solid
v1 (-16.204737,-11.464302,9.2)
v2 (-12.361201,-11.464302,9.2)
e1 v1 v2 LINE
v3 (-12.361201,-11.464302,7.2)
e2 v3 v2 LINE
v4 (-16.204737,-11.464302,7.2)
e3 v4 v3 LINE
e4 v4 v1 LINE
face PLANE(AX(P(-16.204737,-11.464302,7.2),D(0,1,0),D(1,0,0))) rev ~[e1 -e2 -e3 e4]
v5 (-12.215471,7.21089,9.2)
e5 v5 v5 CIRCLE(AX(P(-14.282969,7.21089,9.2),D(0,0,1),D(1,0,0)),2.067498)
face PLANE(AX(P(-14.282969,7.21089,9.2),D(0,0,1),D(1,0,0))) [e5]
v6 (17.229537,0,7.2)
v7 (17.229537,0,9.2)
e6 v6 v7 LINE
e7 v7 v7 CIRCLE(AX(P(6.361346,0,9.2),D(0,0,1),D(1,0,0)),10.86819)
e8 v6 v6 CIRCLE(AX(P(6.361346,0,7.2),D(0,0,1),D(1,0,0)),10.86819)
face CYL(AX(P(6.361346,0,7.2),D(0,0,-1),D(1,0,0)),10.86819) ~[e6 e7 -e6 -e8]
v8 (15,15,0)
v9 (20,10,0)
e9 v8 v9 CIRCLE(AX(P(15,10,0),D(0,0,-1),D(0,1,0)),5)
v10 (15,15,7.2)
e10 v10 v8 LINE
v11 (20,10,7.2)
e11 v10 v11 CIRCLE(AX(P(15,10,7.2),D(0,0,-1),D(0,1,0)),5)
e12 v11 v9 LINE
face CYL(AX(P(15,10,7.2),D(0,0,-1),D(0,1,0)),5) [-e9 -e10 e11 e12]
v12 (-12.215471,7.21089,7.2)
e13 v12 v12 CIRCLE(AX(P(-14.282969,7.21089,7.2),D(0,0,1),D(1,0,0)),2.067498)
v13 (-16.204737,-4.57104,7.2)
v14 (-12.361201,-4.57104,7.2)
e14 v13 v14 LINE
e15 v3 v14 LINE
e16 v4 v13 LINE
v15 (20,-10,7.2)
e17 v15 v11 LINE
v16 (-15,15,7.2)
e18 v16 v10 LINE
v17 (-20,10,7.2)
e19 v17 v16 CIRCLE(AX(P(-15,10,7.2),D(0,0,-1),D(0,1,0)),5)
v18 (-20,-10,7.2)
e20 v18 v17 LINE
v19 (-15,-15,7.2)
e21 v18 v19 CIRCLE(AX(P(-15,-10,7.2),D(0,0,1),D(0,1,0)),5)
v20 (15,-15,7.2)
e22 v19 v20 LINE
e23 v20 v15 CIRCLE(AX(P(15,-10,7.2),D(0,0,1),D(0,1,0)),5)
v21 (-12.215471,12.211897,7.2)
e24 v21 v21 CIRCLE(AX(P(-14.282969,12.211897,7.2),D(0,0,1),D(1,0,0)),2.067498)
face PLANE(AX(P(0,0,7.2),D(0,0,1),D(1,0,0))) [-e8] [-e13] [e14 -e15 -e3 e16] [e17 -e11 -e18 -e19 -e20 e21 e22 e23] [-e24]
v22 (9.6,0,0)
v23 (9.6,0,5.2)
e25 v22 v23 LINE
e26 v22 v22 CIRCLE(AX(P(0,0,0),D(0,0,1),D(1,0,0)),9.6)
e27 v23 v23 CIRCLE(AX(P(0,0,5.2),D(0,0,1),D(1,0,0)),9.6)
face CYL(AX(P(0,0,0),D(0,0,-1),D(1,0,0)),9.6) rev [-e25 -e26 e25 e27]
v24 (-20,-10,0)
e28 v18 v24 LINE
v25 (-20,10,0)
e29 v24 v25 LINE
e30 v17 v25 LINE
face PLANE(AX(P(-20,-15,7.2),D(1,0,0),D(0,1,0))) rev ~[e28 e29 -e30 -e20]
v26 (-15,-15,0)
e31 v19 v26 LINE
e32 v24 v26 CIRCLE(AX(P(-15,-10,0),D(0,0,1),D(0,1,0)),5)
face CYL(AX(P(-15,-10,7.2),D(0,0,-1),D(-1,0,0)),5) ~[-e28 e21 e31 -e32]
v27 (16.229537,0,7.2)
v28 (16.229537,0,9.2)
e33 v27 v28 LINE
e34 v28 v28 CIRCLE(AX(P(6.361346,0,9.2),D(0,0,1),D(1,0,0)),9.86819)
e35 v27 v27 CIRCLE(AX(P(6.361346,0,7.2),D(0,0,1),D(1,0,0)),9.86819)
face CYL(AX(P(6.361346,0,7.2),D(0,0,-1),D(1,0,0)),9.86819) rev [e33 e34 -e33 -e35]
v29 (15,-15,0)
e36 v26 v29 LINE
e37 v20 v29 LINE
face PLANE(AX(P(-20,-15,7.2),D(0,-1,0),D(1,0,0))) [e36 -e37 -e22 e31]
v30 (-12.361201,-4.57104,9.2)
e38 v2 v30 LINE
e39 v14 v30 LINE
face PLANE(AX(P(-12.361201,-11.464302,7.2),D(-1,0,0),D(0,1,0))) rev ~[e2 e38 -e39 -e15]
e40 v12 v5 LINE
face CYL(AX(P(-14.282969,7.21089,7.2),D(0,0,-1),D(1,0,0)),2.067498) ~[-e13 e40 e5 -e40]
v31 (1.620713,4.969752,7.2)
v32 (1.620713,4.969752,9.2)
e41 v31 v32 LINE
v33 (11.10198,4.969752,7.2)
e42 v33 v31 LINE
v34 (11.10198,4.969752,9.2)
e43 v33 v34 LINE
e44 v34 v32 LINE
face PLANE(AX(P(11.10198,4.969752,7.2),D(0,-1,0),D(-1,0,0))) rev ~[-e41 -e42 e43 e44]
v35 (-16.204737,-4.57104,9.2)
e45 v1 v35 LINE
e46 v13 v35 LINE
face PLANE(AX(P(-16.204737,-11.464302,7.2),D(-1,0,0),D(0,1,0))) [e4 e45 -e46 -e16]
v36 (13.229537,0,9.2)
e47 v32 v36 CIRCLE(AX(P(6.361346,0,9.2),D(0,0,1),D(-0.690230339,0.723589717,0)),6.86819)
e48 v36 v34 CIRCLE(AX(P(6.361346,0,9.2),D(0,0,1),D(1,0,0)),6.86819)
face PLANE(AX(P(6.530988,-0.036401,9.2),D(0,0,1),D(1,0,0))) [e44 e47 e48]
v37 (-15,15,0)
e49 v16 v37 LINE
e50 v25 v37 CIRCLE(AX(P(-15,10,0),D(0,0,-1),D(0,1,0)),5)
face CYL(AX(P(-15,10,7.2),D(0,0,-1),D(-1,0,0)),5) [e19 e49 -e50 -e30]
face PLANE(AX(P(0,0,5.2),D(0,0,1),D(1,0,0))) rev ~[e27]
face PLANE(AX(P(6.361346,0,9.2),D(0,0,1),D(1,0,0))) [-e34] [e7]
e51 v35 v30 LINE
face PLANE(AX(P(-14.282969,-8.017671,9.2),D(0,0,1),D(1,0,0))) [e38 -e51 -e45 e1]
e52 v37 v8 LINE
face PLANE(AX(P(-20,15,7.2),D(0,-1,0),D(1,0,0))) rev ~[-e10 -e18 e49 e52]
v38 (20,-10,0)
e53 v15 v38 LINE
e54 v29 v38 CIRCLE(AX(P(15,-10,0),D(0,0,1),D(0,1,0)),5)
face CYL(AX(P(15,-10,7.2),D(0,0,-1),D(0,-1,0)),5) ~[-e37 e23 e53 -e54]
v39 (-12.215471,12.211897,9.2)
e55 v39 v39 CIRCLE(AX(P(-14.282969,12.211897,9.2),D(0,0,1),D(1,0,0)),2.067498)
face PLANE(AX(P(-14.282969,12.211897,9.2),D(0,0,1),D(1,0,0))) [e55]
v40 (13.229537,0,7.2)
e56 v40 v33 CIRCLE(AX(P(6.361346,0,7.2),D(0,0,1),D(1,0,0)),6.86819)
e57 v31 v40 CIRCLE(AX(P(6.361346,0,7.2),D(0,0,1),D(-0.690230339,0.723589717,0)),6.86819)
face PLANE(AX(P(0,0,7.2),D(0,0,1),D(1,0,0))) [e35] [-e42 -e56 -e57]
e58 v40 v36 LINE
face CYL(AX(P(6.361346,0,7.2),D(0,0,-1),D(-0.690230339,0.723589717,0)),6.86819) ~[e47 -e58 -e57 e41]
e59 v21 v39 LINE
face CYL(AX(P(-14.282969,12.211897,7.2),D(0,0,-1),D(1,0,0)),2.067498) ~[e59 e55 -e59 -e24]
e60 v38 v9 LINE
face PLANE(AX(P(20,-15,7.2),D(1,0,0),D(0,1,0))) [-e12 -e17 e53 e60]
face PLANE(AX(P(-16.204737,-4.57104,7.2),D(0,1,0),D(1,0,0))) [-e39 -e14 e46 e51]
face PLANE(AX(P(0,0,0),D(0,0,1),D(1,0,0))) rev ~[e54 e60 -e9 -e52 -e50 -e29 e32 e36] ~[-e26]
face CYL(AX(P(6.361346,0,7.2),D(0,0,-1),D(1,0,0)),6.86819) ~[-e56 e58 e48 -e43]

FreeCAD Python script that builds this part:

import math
import FreeCAD as App
import Part
import Sketcher


def edges_at(feature, points):
    """Names of the edges that pass closest to the given points."""
    edges = feature.Shape.Edges
    near = lambda p: min(range(len(edges)), key=lambda i: edges[i].distToShape(Part.Vertex(*p))[0])
    return sorted({f"Edge{near(p) + 1}" for p in points})

doc = App.newDocument("Part")
body = doc.addObject("PartDesign::Body", "Body")

# Sketch on XY plane
sketch1 = body.newObject("Sketcher::SketchObject", "Sketch")
sketch1.AttachmentSupport = (doc.getObject("XY_Plane"), [""])
sketch1.MapMode = "FlatFace"
sketch1.addGeometry(Part.Circle(App.Vector(0, 0, 0), App.Vector(0, 0, 1), 11.6), False)
sketch1.addGeometry(Part.Circle(App.Vector(0, 0, 0), App.Vector(0, 0, 1), 9.6), False)
sketch1.addConstraint(Sketcher.Constraint("Coincident", 0, 3, -1, 1))
sketch1.addConstraint(Sketcher.Constraint("Coincident", 1, 3, -1, 1))
sketch1.addConstraint(Sketcher.Constraint("Diameter", 0, 23.2))
sketch1.addConstraint(Sketcher.Constraint("Diameter", 1, 19.2))
pad1 = body.newObject("PartDesign::Pad", "Pad")
pad1.Profile = sketch1
pad1.Length = 5.2

# Sketch on XY plane
sketch2 = body.newObject("Sketcher::SketchObject", "Sketch001")
sketch2.AttachmentSupport = (doc.getObject("XY_Plane"), [""])
sketch2.MapMode = "FlatFace"
sketch2.AttachmentOffset = App.Placement(App.Vector(0, 0, 5.2), App.Rotation())
sketch2.addGeometry(Part.Circle(App.Vector(0, 0, 0), App.Vector(0, 0, 1), 11.6), False)
sketch2.addConstraint(Sketcher.Constraint("Coincident", 0, 3, -1, 1))
sketch2.addConstraint(Sketcher.Constraint("Diameter", 0, 23.2))
pad2 = body.newObject("PartDesign::Pad", "Pad001")
pad2.Profile = sketch2
pad2.Length = 2

# Sketch on XY plane
sketch3 = body.newObject("Sketcher::SketchObject", "Sketch002")
sketch3.AttachmentSupport = (doc.getObject("XY_Plane"), [""])
sketch3.MapMode = "FlatFace"
sketch3.AttachmentOffset = App.Placement(App.Vector(0, 0, 7.2), App.Rotation())
sketch3.addGeometry(Part.LineSegment(App.Vector(-20, 15, 0), App.Vector(-20, -15, 0)), False)
sketch3.addGeometry(Part.LineSegment(App.Vector(-20, -15, 0), App.Vector(20, -15, 0)), False)
sketch3.addGeometry(Part.LineSegment(App.Vector(20, -15, 0), App.Vector(20, 15, 0)), False)
sketch3.addGeometry(Part.LineSegment(App.Vector(20, 15, 0), App.Vector(-20, 15, 0)), False)
sketch3.addGeometry(Part.Circle(App.Vector(0, 0, 0), App.Vector(0, 0, 1), 11.6), False)
sketch3.addConstraint(Sketcher.Constraint("Coincident", 0, 2, 1, 1))
sketch3.addConstraint(Sketcher.Constraint("Coincident", 1, 2, 2, 1))
sketch3.addConstraint(Sketcher.Constraint("Coincident", 2, 2, 3, 1))
sketch3.addConstraint(Sketcher.Constraint("Coincident", 3, 2, 0, 1))
sketch3.addConstraint(Sketcher.Constraint("Vertical", 0))
sketch3.addConstraint(Sketcher.Constraint("Horizontal", 1))
sketch3.addConstraint(Sketcher.Constraint("Vertical", 2))
sketch3.addConstraint(Sketcher.Constraint("Horizontal", 3))
sketch3.addConstraint(Sketcher.Constraint("Coincident", 4, 3, -1, 1))
sketch3.addConstraint(Sketcher.Constraint("Symmetric", 0, 2, 2, 2, -1, 1))
sketch3.addConstraint(Sketcher.Constraint("Diameter", 4, 23.2))
sketch3.addConstraint(Sketcher.Constraint("DistanceX", 1, 1, 1, 2, 40.0))
sketch3.addConstraint(Sketcher.Constraint("DistanceY", 0, 2, 0, 1, 30.0))
pad3 = body.newObject("PartDesign::Pad", "Pad002")
pad3.Profile = sketch3
pad3.Length = 7.2
pad3.Reversed = True
doc.recompute()

fillet = body.newObject("PartDesign::Fillet", "Fillet")
fillet.Base = (pad3, edges_at(pad3, [
    (-20, -15, 3.6),
    (-20, 15, 3.6),
    (20, -15, 3.6),
    (20, 15, 3.6),
]))
fillet.Radius = 5

# Sketch on XY plane
sketch4 = body.newObject("Sketcher::SketchObject", "Sketch003")
sketch4.AttachmentSupport = (doc.getObject("XY_Plane"), [""])
sketch4.MapMode = "FlatFace"
sketch4.AttachmentOffset = App.Placement(App.Vector(0, 0, 7.2), App.Rotation())
sketch4.addGeometry(Part.Circle(App.Vector(6.361346, 0, 0), App.Vector(0, 0, 1), 10.86819), False)
sketch4.addGeometry(Part.Circle(App.Vector(6.361346, 0, 0), App.Vector(0, 0, 1), 9.86819), False)
sketch4.addGeometry(Part.ArcOfCircle(Part.Circle(App.Vector(6.361346, 0, 0), App.Vector(0, 0, 1), 6.86819), math.radians(133.648345), math.radians(360)), False)
sketch4.addGeometry(Part.ArcOfCircle(Part.Circle(App.Vector(6.361346, 0, 0), App.Vector(0, 0, 1), 6.86819), math.radians(0), math.radians(46.351655)), False)
sketch4.addGeometry(Part.LineSegment(App.Vector(11.10198, 4.969752, 0), App.Vector(1.620713, 4.969752, 0)), False)
sketch4.addGeometry(Part.LineSegment(App.Vector(-16.204737, -4.57104, 0), App.Vector(-16.204737, -11.464302, 0)), False)
sketch4.addGeometry(Part.LineSegment(App.Vector(-16.204737, -11.464302, 0), App.Vector(-12.361201, -11.464302, 0)), False)
sketch4.addGeometry(Part.LineSegment(App.Vector(-12.361201, -11.464302, 0), App.Vector(-12.361201, -4.57104, 0)), False)
sketch4.addGeometry(Part.LineSegment(App.Vector(-12.361201, -4.57104, 0), App.Vector(-16.204737, -4.57104, 0)), False)
sketch4.addGeometry(Part.Circle(App.Vector(-14.282969, 7.21089, 0), App.Vector(0, 0, 1), 2.067498), False)
sketch4.addGeometry(Part.Circle(App.Vector(-14.282969, 12.211897, 0), App.Vector(0, 0, 1), 2.067498), False)
sketch4.addConstraint(Sketcher.Constraint("Tangent", 2, 2, 3, 1))
sketch4.addConstraint(Sketcher.Constraint("Coincident", 3, 2, 4, 1))
sketch4.addConstraint(Sketcher.Constraint("Coincident", 4, 2, 2, 1))
sketch4.addConstraint(Sketcher.Constraint("Coincident", 5, 2, 6, 1))
sketch4.addConstraint(Sketcher.Constraint("Coincident", 6, 2, 7, 1))
sketch4.addConstraint(Sketcher.Constraint("Coincident", 7, 2, 8, 1))
sketch4.addConstraint(Sketcher.Constraint("Coincident", 8, 2, 5, 1))
sketch4.addConstraint(Sketcher.Constraint("Horizontal", 4))
sketch4.addConstraint(Sketcher.Constraint("Vertical", 5))
sketch4.addConstraint(Sketcher.Constraint("Horizontal", 6))
sketch4.addConstraint(Sketcher.Constraint("Vertical", 7))
sketch4.addConstraint(Sketcher.Constraint("Horizontal", 8))
sketch4.addConstraint(Sketcher.Constraint("Coincident", 1, 3, 0, 3))
sketch4.addConstraint(Sketcher.Constraint("Coincident", 2, 3, 0, 3))
sketch4.addConstraint(Sketcher.Constraint("Equal", 2, 3))
sketch4.addConstraint(Sketcher.Constraint("Equal", 9, 10))
sketch4.addConstraint(Sketcher.Constraint("PointOnObject", 0, 3, -1))
sketch4.addConstraint(Sketcher.Constraint("PointOnObject", 2, 2, -1))
sketch4.addConstraint(Sketcher.Constraint("Vertical", 9, 3, 10, 3))
sketch4.addConstraint(Sketcher.Constraint("Diameter", 0, 21.736381))
sketch4.addConstraint(Sketcher.Constraint("Diameter", 1, 19.736381))
sketch4.addConstraint(Sketcher.Constraint("Radius", 2, 6.86819))
sketch4.addConstraint(Sketcher.Constraint("Diameter", 9, 4.134995))
sketch4.addConstraint(Sketcher.Constraint("DistanceX", 6, 2, -1, 1, 12.361201))
sketch4.addConstraint(Sketcher.Constraint("DistanceY", 5, 2, 10, 3, 23.6762))
sketch4.addConstraint(Sketcher.Constraint("DistanceX", 4, 2, 4, 1, 9.481267))
sketch4.addConstraint(Sketcher.Constraint("DistanceX", 6, 1, 6, 2, 3.843537))
sketch4.addConstraint(Sketcher.Constraint("DistanceY", 5, 2, 5, 1, 6.893262))
sketch4.addConstraint(Sketcher.Constraint("DistanceX", 9, 3, -1, 1, 14.282969))
sketch4.addConstraint(Sketcher.Constraint("DistanceY", -1, 1, 9, 3, 7.21089))
sketch4.addConstraint(Sketcher.Constraint("DistanceX", -1, 1, 3, 2, 11.10198))
sketch4.addConstraint(Sketcher.Constraint("DistanceY", 7, 2, -1, 1, 4.57104))
pad4 = body.newObject("PartDesign::Pad", "Pad003")
pad4.Profile = sketch4
pad4.Length = 2

doc.recompute()
